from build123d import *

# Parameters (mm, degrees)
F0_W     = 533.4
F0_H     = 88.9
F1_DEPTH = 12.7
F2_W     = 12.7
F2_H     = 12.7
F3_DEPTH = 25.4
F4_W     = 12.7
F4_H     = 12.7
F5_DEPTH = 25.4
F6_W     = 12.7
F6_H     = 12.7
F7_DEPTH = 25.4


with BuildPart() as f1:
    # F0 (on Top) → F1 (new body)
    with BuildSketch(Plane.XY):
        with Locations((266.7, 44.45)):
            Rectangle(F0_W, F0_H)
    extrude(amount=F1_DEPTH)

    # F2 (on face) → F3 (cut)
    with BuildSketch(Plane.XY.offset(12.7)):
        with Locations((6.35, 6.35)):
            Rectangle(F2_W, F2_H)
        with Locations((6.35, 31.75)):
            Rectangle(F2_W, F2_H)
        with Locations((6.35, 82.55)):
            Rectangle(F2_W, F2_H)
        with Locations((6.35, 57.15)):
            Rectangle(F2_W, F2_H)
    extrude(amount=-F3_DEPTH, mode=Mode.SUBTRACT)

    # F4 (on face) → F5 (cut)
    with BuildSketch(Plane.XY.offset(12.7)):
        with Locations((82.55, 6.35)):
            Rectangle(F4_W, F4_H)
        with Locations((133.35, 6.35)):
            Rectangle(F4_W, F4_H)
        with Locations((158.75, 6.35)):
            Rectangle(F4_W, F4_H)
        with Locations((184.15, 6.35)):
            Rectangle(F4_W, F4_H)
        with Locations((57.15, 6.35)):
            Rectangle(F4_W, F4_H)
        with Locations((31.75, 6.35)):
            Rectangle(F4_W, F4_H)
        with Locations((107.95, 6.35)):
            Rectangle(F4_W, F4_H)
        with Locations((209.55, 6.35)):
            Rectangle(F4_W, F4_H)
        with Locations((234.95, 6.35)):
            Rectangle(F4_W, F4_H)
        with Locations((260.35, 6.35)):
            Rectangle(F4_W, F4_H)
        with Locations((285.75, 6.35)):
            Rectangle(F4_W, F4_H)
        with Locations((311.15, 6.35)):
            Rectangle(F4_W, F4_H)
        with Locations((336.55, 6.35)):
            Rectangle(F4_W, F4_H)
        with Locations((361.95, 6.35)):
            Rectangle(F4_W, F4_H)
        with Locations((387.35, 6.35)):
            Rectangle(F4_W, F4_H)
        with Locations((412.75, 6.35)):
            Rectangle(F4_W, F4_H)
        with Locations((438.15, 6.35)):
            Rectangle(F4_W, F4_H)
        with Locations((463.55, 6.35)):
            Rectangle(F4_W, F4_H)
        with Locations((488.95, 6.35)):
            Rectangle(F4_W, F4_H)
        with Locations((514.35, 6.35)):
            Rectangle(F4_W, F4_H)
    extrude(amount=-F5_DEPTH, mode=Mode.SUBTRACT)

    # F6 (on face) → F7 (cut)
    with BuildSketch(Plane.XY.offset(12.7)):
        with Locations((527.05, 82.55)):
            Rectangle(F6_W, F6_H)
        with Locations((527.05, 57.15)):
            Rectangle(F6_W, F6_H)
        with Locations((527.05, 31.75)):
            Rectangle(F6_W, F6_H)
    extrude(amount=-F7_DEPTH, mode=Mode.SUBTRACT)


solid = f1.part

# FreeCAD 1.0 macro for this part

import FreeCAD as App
import Part
import Sketcher
from FreeCAD import Vector
Q = App.Units.Quantity

doc = App.newDocument("Part")
body = doc.addObject("PartDesign::Body", "Body")

# Sketch on XY plane
sketch1 = body.newObject("Sketcher::SketchObject", "Sketch")
sketch1.AttachmentSupport = (doc.getObject("XY_Plane"), [""])
sketch1.MapMode = "FlatFace"
sketch1.addGeometry([
    Part.LineSegment(Vector(0, 89, 0), Vector(0, 0, 0)),
    Part.LineSegment(Vector(0, 0, 0), Vector(533, 0, 0)),
    Part.LineSegment(Vector(533, 0, 0), Vector(533, 89, 0)),
    Part.LineSegment(Vector(533, 89, 0), Vector(0, 89, 0)),
], False)
sketch1.addConstraint([
    Sketcher.Constraint("Coincident", 0, 2, 1, 1),
    Sketcher.Constraint("Coincident", 1, 2, 2, 1),
    Sketcher.Constraint("Coincident", 2, 2, 3, 1),
    Sketcher.Constraint("Coincident", 3, 2, 0, 1),
    Sketcher.Constraint("Vertical", 0),
    Sketcher.Constraint("Horizontal", 1),
    Sketcher.Constraint("Vertical", 2),
    Sketcher.Constraint("Horizontal", 3),
    Sketcher.Constraint("Coincident", 0, 2, -1, 1),
    Sketcher.Constraint("DistanceX", 1, 1, 1, 2, Q("21 in")),
    Sketcher.Constraint("DistanceY", 0, 2, 0, 1, Q("3.5 in")),
])
pad1 = body.newObject("PartDesign::Pad", "Pad")
pad1.Profile = sketch1
pad1.Length = Q("0.5 in")

# Sketch on XY plane
sketch2 = body.newObject("Sketcher::SketchObject", "Sketch001")
sketch2.AttachmentSupport = (doc.getObject("XY_Plane"), [""])
sketch2.MapMode = "FlatFace"
sketch2.AttachmentOffset = App.Placement(Vector(0, 0, 0.5 * 25.4), App.Rotation())
sketch2.addGeometry([
    Part.LineSegment(Vector(0, 13, 0), Vector(0, 0, 0)),  # 0
    Part.LineSegment(Vector(0, 0, 0), Vector(13, 0, 0)),  # 1
    Part.LineSegment(Vector(13, 0, 0), Vector(13, 13, 0)),  # 2
    Part.LineSegment(Vector(13, 13, 0), Vector(0, 13, 0)),  # 3
    Part.LineSegment(Vector(0, 38, 0), Vector(0, 25, 0)),  # 4
    Part.LineSegment(Vector(0, 25, 0), Vector(13, 25, 0)),  # 5
    Part.LineSegment(Vector(13, 25, 0), Vector(13, 38, 0)),  # 6
    Part.LineSegment(Vector(13, 38, 0), Vector(0, 38, 0)),  # 7
    Part.LineSegment(Vector(0, 89, 0), Vector(0, 76, 0)),  # 8
    Part.LineSegment(Vector(0, 76, 0), Vector(13, 76, 0)),  # 9
    Part.LineSegment(Vector(13, 76, 0), Vector(13, 89, 0)),  # 10
    Part.LineSegment(Vector(13, 89, 0), Vector(0, 89, 0)),  # 11
    Part.LineSegment(Vector(0, 64, 0), Vector(0, 51, 0)),  # 12
    Part.LineSegment(Vector(0, 51, 0), Vector(13, 51, 0)),  # 13
    Part.LineSegment(Vector(13, 51, 0), Vector(13, 64, 0)),  # 14
    Part.LineSegment(Vector(13, 64, 0), Vector(0, 64, 0)),  # 15
], False)
sketch2.addConstraint([
    Sketcher.Constraint("Coincident", 0, 2, 1, 1),
    Sketcher.Constraint("Coincident", 1, 2, 2, 1),
    Sketcher.Constraint("Coincident", 2, 2, 3, 1),
    Sketcher.Constraint("Coincident", 3, 2, 0, 1),
    Sketcher.Constraint("Coincident", 4, 2, 5, 1),
    Sketcher.Constraint("Coincident", 5, 2, 6, 1),
    Sketcher.Constraint("Coincident", 6, 2, 7, 1),
    Sketcher.Constraint("Coincident", 7, 2, 4, 1),
    Sketcher.Constraint("Coincident", 8, 2, 9, 1),
    Sketcher.Constraint("Coincident", 9, 2, 10, 1),
    Sketcher.Constraint("Coincident", 10, 2, 11, 1),
    Sketcher.Constraint("Coincident", 11, 2, 8, 1),
    Sketcher.Constraint("Coincident", 12, 2, 13, 1),
    Sketcher.Constraint("Coincident", 13, 2, 14, 1),
    Sketcher.Constraint("Coincident", 14, 2, 15, 1),
    Sketcher.Constraint("Coincident", 15, 2, 12, 1),
    Sketcher.Constraint("Vertical", 0),
    Sketcher.Constraint("Horizontal", 1),
    Sketcher.Constraint("Vertical", 2),
    Sketcher.Constraint("Horizontal", 3),
    Sketcher.Constraint("Vertical", 4),
    Sketcher.Constraint("Horizontal", 5),
    Sketcher.Constraint("Vertical", 6),
    Sketcher.Constraint("Horizontal", 7),
    Sketcher.Constraint("Vertical", 8),
    Sketcher.Constraint("Horizontal", 9),
    Sketcher.Constraint("Vertical", 10),
    Sketcher.Constraint("Horizontal", 11),
    Sketcher.Constraint("Vertical", 12),
    Sketcher.Constraint("Horizontal", 13),
    Sketcher.Constraint("Vertical", 14),
    Sketcher.Constraint("Horizontal", 15),
    Sketcher.Constraint("Coincident", 0, 2, -1, 1),
    Sketcher.Constraint("PointOnObject", 4, 2, -2),
    Sketcher.Constraint("PointOnObject", 8, 2, -2),
    Sketcher.Constraint("PointOnObject", 12, 2, -2),
    Sketcher.Constraint("Vertical", 2, 2, 5, 2),
    Sketcher.Constraint("Vertical", 6, 2, 9, 2),
    Sketcher.Constraint("Vertical", 10, 2, 13, 2),
    Sketcher.Constraint("Equal", 15, 0),
    Sketcher.Constraint("Equal", 2, 4),
    Sketcher.Constraint("Equal", 6, 8),
    Sketcher.Constraint("Equal", 10, 12),
    Sketcher.Constraint("DistanceX", 1, 1, 1, 2, Q("0.5 in")),
    Sketcher.Constraint("DistanceY", -1, 1, 4, 2, Q("1 in")),
    Sketcher.Constraint("DistanceY", -1, 1, 8, 2, Q("3 in")),
    Sketcher.Constraint("DistanceY", -1, 1, 12, 2, Q("2 in")),
])
pocket1 = body.newObject("PartDesign::Pocket", "Pocket")
pocket1.Profile = sketch2
pocket1.Length = Q("1 in")

# Sketch on XY plane
sketch3 = body.newObject("Sketcher::SketchObject", "Sketch002")
sketch3.AttachmentSupport = (doc.getObject("XY_Plane"), [""])
sketch3.MapMode = "FlatFace"
sketch3.AttachmentOffset = App.Placement(Vector(0, 0, 0.5 * 25.4), App.Rotation())
sketch3.addGeometry([
    Part.LineSegment(Vector(76, 13, 0), Vector(76, 0, 0)),  # 0
    Part.LineSegment(Vector(76, 0, 0), Vector(89, 0, 0)),  # 1
    Part.LineSegment(Vector(89, 0, 0), Vector(89, 13, 0)),  # 2
    Part.LineSegment(Vector(89, 13, 0), Vector(76, 13, 0)),  # 3
    Part.LineSegment(Vector(127, 13, 0), Vector(127, 0, 0)),  # 4
    Part.LineSegment(Vector(127, 0, 0), Vector(140, 0, 0)),  # 5
    Part.LineSegment(Vector(140, 0, 0), Vector(140, 13, 0)),  # 6
    Part.LineSegment(Vector(140, 13, 0), Vector(127, 13, 0)),  # 7
    Part.LineSegment(Vector(152, 13, 0), Vector(152, 0, 0)),  # 8
    Part.LineSegment(Vector(152, 0, 0), Vector(165, 0, 0)),  # 9
    Part.LineSegment(Vector(165, 0, 0), Vector(165, 13, 0)),  # 10
    Part.LineSegment(Vector(165, 13, 0), Vector(152, 13, 0)),  # 11
    Part.LineSegment(Vector(178, 13, 0), Vector(178, 0, 0)),  # 12
    Part.LineSegment(Vector(178, 0, 0), Vector(190, 0, 0)),  # 13
    Part.LineSegment(Vector(190, 0, 0), Vector(190, 13, 0)),  # 14
    Part.LineSegment(Vector(190, 13, 0), Vector(178, 13, 0)),  # 15
    Part.LineSegment(Vector(51, 13, 0), Vector(51, 0, 0)),  # 16
    Part.LineSegment(Vector(51, 0, 0), Vector(64, 0, 0)),  # 17
    Part.LineSegment(Vector(64, 0, 0), Vector(64, 13, 0)),  # 18
    Part.LineSegment(Vector(64, 13, 0), Vector(51, 13, 0)),  # 19
    Part.LineSegment(Vector(25, 13, 0), Vector(25, 0, 0)),  # 20
    Part.LineSegment(Vector(25, 0, 0), Vector(38, 0, 0)),  # 21
    Part.LineSegment(Vector(38, 0, 0), Vector(38, 13, 0)),  # 22
    Part.LineSegment(Vector(38, 13, 0), Vector(25, 13, 0)),  # 23
    Part.LineSegment(Vector(102, 13, 0), Vector(102, 0, 0)),  # 24
    Part.LineSegment(Vector(102, 0, 0), Vector(114, 0, 0)),  # 25
    Part.LineSegment(Vector(114, 0, 0), Vector(114, 13, 0)),  # 26
    Part.LineSegment(Vector(114, 13, 0), Vector(102, 13, 0)),  # 27
    Part.LineSegment(Vector(203, 13, 0), Vector(203, 0, 0)),  # 28
    Part.LineSegment(Vector(203, 0, 0), Vector(216, 0, 0)),  # 29
    Part.LineSegment(Vector(216, 0, 0), Vector(216, 13, 0)),  # 30
    Part.LineSegment(Vector(216, 13, 0), Vector(203, 13, 0)),  # 31
    Part.LineSegment(Vector(229, 13, 0), Vector(229, 0, 0)),  # 32
    Part.LineSegment(Vector(229, 0, 0), Vector(241, 0, 0)),  # 33
    Part.LineSegment(Vector(241, 0, 0), Vector(241, 13, 0)),  # 34
    Part.LineSegment(Vector(241, 13, 0), Vector(229, 13, 0)),  # 35
    Part.LineSegment(Vector(254, 13, 0), Vector(254, 0, 0)),  # 36
    Part.LineSegment(Vector(254, 0, 0), Vector(267, 0, 0)),  # 37
    Part.LineSegment(Vector(267, 0, 0), Vector(267, 13, 0)),  # 38
    Part.LineSegment(Vector(267, 13, 0), Vector(254, 13, 0)),  # 39
    Part.LineSegment(Vector(279, 13, 0), Vector(279, 0, 0)),  # 40
    Part.LineSegment(Vector(279, 0, 0), Vector(292, 0, 0)),  # 41
    Part.LineSegment(Vector(292, 0, 0), Vector(292, 13, 0)),  # 42
    Part.LineSegment(Vector(292, 13, 0), Vector(279, 13, 0)),  # 43
    Part.LineSegment(Vector(305, 13, 0), Vector(305, 0, 0)),  # 44
    Part.LineSegment(Vector(305, 0, 0), Vector(318, 0, 0)),  # 45
    Part.LineSegment(Vector(318, 0, 0), Vector(318, 13, 0)),  # 46
    Part.LineSegment(Vector(318, 13, 0), Vector(305, 13, 0)),  # 47
    Part.LineSegment(Vector(330, 13, 0), Vector(330, 0, 0)),  # 48
    Part.LineSegment(Vector(330, 0, 0), Vector(343, 0, 0)),  # 49
    Part.LineSegment(Vector(343, 0, 0), Vector(343, 13, 0)),  # 50
    Part.LineSegment(Vector(343, 13, 0), Vector(330, 13, 0)),  # 51
    Part.LineSegment(Vector(356, 13, 0), Vector(356, 0, 0)),  # 52
    Part.LineSegment(Vector(356, 0, 0), Vector(368, 0, 0)),  # 53
    Part.LineSegment(Vector(368, 0, 0), Vector(368, 13, 0)),  # 54
    Part.LineSegment(Vector(368, 13, 0), Vector(356, 13, 0)),  # 55
    Part.LineSegment(Vector(381, 13, 0), Vector(381, 0, 0)),  # 56
    Part.LineSegment(Vector(381, 0, 0), Vector(394, 0, 0)),  # 57
    Part.LineSegment(Vector(394, 0, 0), Vector(394, 13, 0)),  # 58
    Part.LineSegment(Vector(394, 13, 0), Vector(381, 13, 0)),  # 59
    Part.LineSegment(Vector(406, 13, 0), Vector(406, 0, 0)),  # 60
    Part.LineSegment(Vector(406, 0, 0), Vector(419, 0, 0)),  # 61
    Part.LineSegment(Vector(419, 0, 0), Vector(419, 13, 0)),  # 62
    Part.LineSegment(Vector(419, 13, 0), Vector(406, 13, 0)),  # 63
    Part.LineSegment(Vector(432, 13, 0), Vector(432, 0, 0)),  # 64
    Part.LineSegment(Vector(432, 0, 0), Vector(444, 0, 0)),  # 65
    Part.LineSegment(Vector(444, 0, 0), Vector(444, 13, 0)),  # 66
    Part.LineSegment(Vector(444, 13, 0), Vector(432, 13, 0)),  # 67
    Part.LineSegment(Vector(457, 13, 0), Vector(457, 0, 0)),  # 68
    Part.LineSegment(Vector(457, 0, 0), Vector(470, 0, 0)),  # 69
    Part.LineSegment(Vector(470, 0, 0), Vector(470, 13, 0)),  # 70
    Part.LineSegment(Vector(470, 13, 0), Vector(457, 13, 0)),  # 71
    Part.LineSegment(Vector(483, 13, 0), Vector(483, 0, 0)),  # 72
    Part.LineSegment(Vector(483, 0, 0), Vector(495, 0, 0)),  # 73
    Part.LineSegment(Vector(495, 0, 0), Vector(495, 13, 0)),  # 74
    Part.LineSegment(Vector(495, 13, 0), Vector(483, 13, 0)),  # 75
    Part.LineSegment(Vector(508, 13, 0), Vector(508, 0, 0)),  # 76
    Part.LineSegment(Vector(508, 0, 0), Vector(521, 0, 0)),  # 77
    Part.LineSegment(Vector(521, 0, 0), Vector(521, 13, 0)),  # 78
    Part.LineSegment(Vector(521, 13, 0), Vector(508, 13, 0)),  # 79
], False)
sketch3.addConstraint([
    Sketcher.Constraint("Coincident", 0, 2, 1, 1),
    Sketcher.Constraint("Coincident", 1, 2, 2, 1),
    Sketcher.Constraint("Coincident", 2, 2, 3, 1),
    Sketcher.Constraint("Coincident", 3, 2, 0, 1),
    Sketcher.Constraint("Coincident", 4, 2, 5, 1),
    Sketcher.Constraint("Coincident", 5, 2, 6, 1),
    Sketcher.Constraint("Coincident", 6, 2, 7, 1),
    Sketcher.Constraint("Coincident", 7, 2, 4, 1),
    Sketcher.Constraint("Coincident", 8, 2, 9, 1),
    Sketcher.Constraint("Coincident", 9, 2, 10, 1),
    Sketcher.Constraint("Coincident", 10, 2, 11, 1),
    Sketcher.Constraint("Coincident", 11, 2, 8, 1),
    Sketcher.Constraint("Coincident", 12, 2, 13, 1),
    Sketcher.Constraint("Coincident", 13, 2, 14, 1),
    Sketcher.Constraint("Coincident", 14, 2, 15, 1),
    Sketcher.Constraint("Coincident", 15, 2, 12, 1),
    Sketcher.Constraint("Coincident", 16, 2, 17, 1),
    Sketcher.Constraint("Coincident", 17, 2, 18, 1),
    Sketcher.Constraint("Coincident", 18, 2, 19, 1),
    Sketcher.Constraint("Coincident", 19, 2, 16, 1),
    Sketcher.Constraint("Coincident", 20, 2, 21, 1),
    Sketcher.Constraint("Coincident", 21, 2, 22, 1),
    Sketcher.Constraint("Coincident", 22, 2, 23, 1),
    Sketcher.Constraint("Coincident", 23, 2, 20, 1),
    Sketcher.Constraint("Coincident", 24, 2, 25, 1),
    Sketcher.Constraint("Coincident", 25, 2, 26, 1),
    Sketcher.Constraint("Coincident", 26, 2, 27, 1),
    Sketcher.Constraint("Coincident", 27, 2, 24, 1),
    Sketcher.Constraint("Coincident", 28, 2, 29, 1),
    Sketcher.Constraint("Coincident", 29, 2, 30, 1),
    Sketcher.Constraint("Coincident", 30, 2, 31, 1),
    Sketcher.Constraint("Coincident", 31, 2, 28, 1),
    Sketcher.Constraint("Coincident", 32, 2, 33, 1),
    Sketcher.Constraint("Coincident", 33, 2, 34, 1),
    Sketcher.Constraint("Coincident", 34, 2, 35, 1),
    Sketcher.Constraint("Coincident", 35, 2, 32, 1),
    Sketcher.Constraint("Coincident", 36, 2, 37, 1),
    Sketcher.Constraint("Coincident", 37, 2, 38, 1),
    Sketcher.Constraint("Coincident", 38, 2, 39, 1),
    Sketcher.Constraint("Coincident", 39, 2, 36, 1),
    Sketcher.Constraint("Coincident", 40, 2, 41, 1),
    Sketcher.Constraint("Coincident", 41, 2, 42, 1),
    Sketcher.Constraint("Coincident", 42, 2, 43, 1),
    Sketcher.Constraint("Coincident", 43, 2, 40, 1),
    Sketcher.Constraint("Coincident", 44, 2, 45, 1),
    Sketcher.Constraint("Coincident", 45, 2, 46, 1),
    Sketcher.Constraint("Coincident", 46, 2, 47, 1),
    Sketcher.Constraint("Coincident", 47, 2, 44, 1),
    Sketcher.Constraint("Coincident", 48, 2, 49, 1),
    Sketcher.Constraint("Coincident", 49, 2, 50, 1),
    Sketcher.Constraint("Coincident", 50, 2, 51, 1),
    Sketcher.Constraint("Coincident", 51, 2, 48, 1),
    Sketcher.Constraint("Coincident", 52, 2, 53, 1),
    Sketcher.Constraint("Coincident", 53, 2, 54, 1),
    Sketcher.Constraint("Coincident", 54, 2, 55, 1),
    Sketcher.Constraint("Coincident", 55, 2, 52, 1),
    Sketcher.Constraint("Coincident", 56, 2, 57, 1),
    Sketcher.Constraint("Coincident", 57, 2, 58, 1),
    Sketcher.Constraint("Coincident", 58, 2, 59, 1),
    Sketcher.Constraint("Coincident", 59, 2, 56, 1),
    Sketcher.Constraint("Coincident", 60, 2, 61, 1),
    Sketcher.Constraint("Coincident", 61, 2, 62, 1),
    Sketcher.Constraint("Coincident", 62, 2, 63, 1),
    Sketcher.Constraint("Coincident", 63, 2, 60, 1),
    Sketcher.Constraint("Coincident", 64, 2, 65, 1),
    Sketcher.Constraint("Coincident", 65, 2, 66, 1),
    Sketcher.Constraint("Coincident", 66, 2, 67, 1),
    Sketcher.Constraint("Coincident", 67, 2, 64, 1),
    Sketcher.Constraint("Coincident", 68, 2, 69, 1),
    Sketcher.Constraint("Coincident", 69, 2, 70, 1),
    Sketcher.Constraint("Coincident", 70, 2, 71, 1),
    Sketcher.Constraint("Coincident", 71, 2, 68, 1),
    Sketcher.Constraint("Coincident", 72, 2, 73, 1),
    Sketcher.Constraint("Coincident", 73, 2, 74, 1),
    Sketcher.Constraint("Coincident", 74, 2, 75, 1),
    Sketcher.Constraint("Coincident", 75, 2, 72, 1),
    Sketcher.Constraint("Coincident", 76, 2, 77, 1),
    Sketcher.Constraint("Coincident", 77, 2, 78, 1),
    Sketcher.Constraint("Coincident", 78, 2, 79, 1),
    Sketcher.Constraint("Coincident", 79, 2, 76, 1),
    Sketcher.Constraint("Vertical", 0),
    Sketcher.Constraint("Horizontal", 1),
    Sketcher.Constraint("Vertical", 2),
    Sketcher.Constraint("Horizontal", 3),
    Sketcher.Constraint("Vertical", 4),
    Sketcher.Constraint("Horizontal", 5),
    Sketcher.Constraint("Vertical", 6),
    Sketcher.Constraint("Horizontal", 7),
    Sketcher.Constraint("Vertical", 8),
    Sketcher.Constraint("Horizontal", 9),
    Sketcher.Constraint("Vertical", 10),
    Sketcher.Constraint("Horizontal", 11),
    Sketcher.Constraint("Vertical", 12),
    Sketcher.Constraint("Horizontal", 13),
    Sketcher.Constraint("Vertical", 14),
    Sketcher.Constraint("Horizontal", 15),
    Sketcher.Constraint("Vertical", 16),
    Sketcher.Constraint("Horizontal", 17),
    Sketcher.Constraint("Vertical", 18),
    Sketcher.Constraint("Horizontal", 19),
    Sketcher.Constraint("Vertical", 20),
    Sketcher.Constraint("Horizontal", 21),
    Sketcher.Constraint("Vertical", 22),
    Sketcher.Constraint("Horizontal", 23),
    Sketcher.Constraint("Vertical", 24),
    Sketcher.Constraint("Horizontal", 25),
    Sketcher.Constraint("Vertical", 26),
    Sketcher.Constraint("Horizontal", 27),
    Sketcher.Constraint("Vertical", 28),
    Sketcher.Constraint("Horizontal", 29),
    Sketcher.Constraint("Vertical", 30),
    Sketcher.Constraint("Horizontal", 31),
    Sketcher.Constraint("Vertical", 32),
    Sketcher.Constraint("Horizontal", 33),
    Sketcher.Constraint("Vertical", 34),
    Sketcher.Constraint("Horizontal", 35),
    Sketcher.Constraint("Vertical", 36),
    Sketcher.Constraint("Horizontal", 37),
    Sketcher.Constraint("Vertical", 38),
    Sketcher.Constraint("Horizontal", 39),
    Sketcher.Constraint("Vertical", 40),
    Sketcher.Constraint("Horizontal", 41),
    Sketcher.Constraint("Vertical", 42),
    Sketcher.Constraint("Horizontal", 43),
    Sketcher.Constraint("Vertical", 44),
    Sketcher.Constraint("Horizontal", 45),
    Sketcher.Constraint("Vertical", 46),
    Sketcher.Constraint("Horizontal", 47),
    Sketcher.Constraint("Vertical", 48),
    Sketcher.Constraint("Horizontal", 49),
    Sketcher.Constraint("Vertical", 50),
    Sketcher.Constraint("Horizontal", 51),
    Sketcher.Constraint("Vertical", 52),
    Sketcher.Constraint("Horizontal", 53),
    Sketcher.Constraint("Vertical", 54),
    Sketcher.Constraint("Horizontal", 55),
    Sketcher.Constraint("Vertical", 56),
    Sketcher.Constraint("Horizontal", 57),
    Sketcher.Constraint("Vertical", 58),
    Sketcher.Constraint("Horizontal", 59),
    Sketcher.Constraint("Vertical", 60),
    Sketcher.Constraint("Horizontal", 61),
    Sketcher.Constraint("Vertical", 62),
    Sketcher.Constraint("Horizontal", 63),
    Sketcher.Constraint("Vertical", 64),
    Sketcher.Constraint("Horizontal", 65),
    Sketcher.Constraint("Vertical", 66),
    Sketcher.Constraint("Horizontal", 67),
    Sketcher.Constraint("Vertical", 68),
    Sketcher.Constraint("Horizontal", 69),
    Sketcher.Constraint("Vertical", 70),
    Sketcher.Constraint("Horizontal", 71),
    Sketcher.Constraint("Vertical", 72),
    Sketcher.Constraint("Horizontal", 73),
    Sketcher.Constraint("Vertical", 74),
    Sketcher.Constraint("Horizontal", 75),
    Sketcher.Constraint("Vertical", 76),
    Sketcher.Constraint("Horizontal", 77),
    Sketcher.Constraint("Vertical", 78),
    Sketcher.Constraint("Horizontal", 79),
    Sketcher.Constraint("PointOnObject", 0, 2, -1),
    Sketcher.Constraint("PointOnObject", 4, 2, -1),
    Sketcher.Constraint("PointOnObject", 8, 2, -1),
    Sketcher.Constraint("PointOnObject", 12, 2, -1),
    Sketcher.Constraint("PointOnObject", 16, 2, -1),
    Sketcher.Constraint("PointOnObject", 20, 2, -1),
    Sketcher.Constraint("PointOnObject", 24, 2, -1),
    Sketcher.Constraint("PointOnObject", 28, 2, -1),
    Sketcher.Constraint("PointOnObject", 32, 2, -1),
    Sketcher.Constraint("PointOnObject", 36, 2, -1),
    Sketcher.Constraint("PointOnObject", 40, 2, -1),
    Sketcher.Constraint("PointOnObject", 44, 2, -1),
    Sketcher.Constraint("PointOnObject", 48, 2, -1),
    Sketcher.Constraint("PointOnObject", 52, 2, -1),
    Sketcher.Constraint("PointOnObject", 56, 2, -1),
    Sketcher.Constraint("PointOnObject", 60, 2, -1),
    Sketcher.Constraint("PointOnObject", 64, 2, -1),
    Sketcher.Constraint("PointOnObject", 68, 2, -1),
    Sketcher.Constraint("PointOnObject", 72, 2, -1),
    Sketcher.Constraint("PointOnObject", 76, 2, -1),
    Sketcher.Constraint("Horizontal", 3, 2, 6, 2),
    Sketcher.Constraint("Horizontal", 7, 2, 10, 2),
    Sketcher.Constraint("Horizontal", 11, 2, 14, 2),
    Sketcher.Constraint("Horizontal", 15, 2, 18, 2),
    Sketcher.Constraint("Horizontal", 19, 2, 22, 2),
    Sketcher.Constraint("Horizontal", 23, 2, 26, 2),
    Sketcher.Constraint("Horizontal", 27, 2, 30, 2),
    Sketcher.Constraint("Horizontal", 31, 2, 34, 2),
    Sketcher.Constraint("Horizontal", 35, 2, 38, 2),
    Sketcher.Constraint("Horizontal", 39, 2, 42, 2),
    Sketcher.Constraint("Horizontal", 43, 2, 46, 2),
    Sketcher.Constraint("Horizontal", 47, 2, 50, 2),
    Sketcher.Constraint("Horizontal", 51, 2, 54, 2),
    Sketcher.Constraint("Horizontal", 55, 2, 58, 2),
    Sketcher.Constraint("Horizontal", 59, 2, 62, 2),
    Sketcher.Constraint("Horizontal", 63, 2, 66, 2),
    Sketcher.Constraint("Horizontal", 67, 2, 70, 2),
    Sketcher.Constraint("Horizontal", 71, 2, 74, 2),
    Sketcher.Constraint("Horizontal", 75, 2, 78, 2),
    Sketcher.Constraint("Equal", 3, 5),
    Sketcher.Constraint("Equal", 7, 9),
    Sketcher.Constraint("Equal", 11, 13),
    Sketcher.Constraint("Equal", 15, 17),
    Sketcher.Constraint("Equal", 19, 21),
    Sketcher.Constraint("Equal", 23, 25),
    Sketcher.Constraint("Equal", 27, 29),
    Sketcher.Constraint("Equal", 31, 33),
    Sketcher.Constraint("Equal", 35, 37),
    Sketcher.Constraint("Equal", 39, 41),
    Sketcher.Constraint("Equal", 43, 45),
    Sketcher.Constraint("Equal", 47, 49),
    Sketcher.Constraint("Equal", 51, 53),
    Sketcher.Constraint("Equal", 55, 57),
    Sketcher.Constraint("Equal", 59, 61),
    Sketcher.Constraint("Equal", 63, 65),
    Sketcher.Constraint("Equal", 67, 69),
    Sketcher.Constraint("Equal", 71, 73),
    Sketcher.Constraint("Equal", 75, 77),
    Sketcher.Constraint("Equal", 79, 0),
    Sketcher.Constraint("DistanceX", 1, 1, 1, 2, Q("0.5 in")),
    Sketcher.Constraint("DistanceX", -1, 1, 0, 2, Q("3 in")),
    Sketcher.Constraint("DistanceX", -1, 1, 4, 2, Q("5 in")),
    Sketcher.Constraint("DistanceX", -1, 1, 8, 2, Q("6 in")),
    Sketcher.Constraint("DistanceX", -1, 1, 12, 2, Q("7 in")),
    Sketcher.Constraint("DistanceX", -1, 1, 16, 2, Q("2 in")),
    Sketcher.Constraint("DistanceX", -1, 1, 20, 2, Q("1 in")),
    Sketcher.Constraint("DistanceX", -1, 1, 24, 2, Q("4 in")),
    Sketcher.Constraint("DistanceX", -1, 1, 28, 2, Q("8 in")),
    Sketcher.Constraint("DistanceX", -1, 1, 32, 2, Q("9 in")),
    Sketcher.Constraint("DistanceX", -1, 1, 36, 2, Q("10 in")),
    Sketcher.Constraint("DistanceX", -1, 1, 40, 2, Q("11 in")),
    Sketcher.Constraint("DistanceX", -1, 1, 44, 2, Q("12 in")),
    Sketcher.Constraint("DistanceX", -1, 1, 48, 2, Q("13 in")),
    Sketcher.Constraint("DistanceX", -1, 1, 52, 2, Q("14 in")),
    Sketcher.Constraint("DistanceX", -1, 1, 56, 2, Q("15 in")),
    Sketcher.Constraint("DistanceX", -1, 1, 60, 2, Q("16 in")),
    Sketcher.Constraint("DistanceX", -1, 1, 64, 2, Q("17 in")),
    Sketcher.Constraint("DistanceX", -1, 1, 68, 2, Q("18 in")),
    Sketcher.Constraint("DistanceX", -1, 1, 72, 2, Q("19 in")),
    Sketcher.Constraint("DistanceX", -1, 1, 76, 2, Q("20 in")),
])
pocket2 = body.newObject("PartDesign::Pocket", "Pocket001")
pocket2.Profile = sketch3
pocket2.Length = Q("1 in")

# Sketch on XY plane
sketch4 = body.newObject("Sketcher::SketchObject", "Sketch003")
sketch4.AttachmentSupport = (doc.getObject("XY_Plane"), [""])
sketch4.MapMode = "FlatFace"
sketch4.AttachmentOffset = App.Placement(Vector(0, 0, 0.5 * 25.4), App.Rotation())
sketch4.addGeometry([
    Part.LineSegment(Vector(521, 89, 0), Vector(521, 76, 0)),  # 0
    Part.LineSegment(Vector(521, 76, 0), Vector(533, 76, 0)),  # 1
    Part.LineSegment(Vector(533, 76, 0), Vector(533, 89, 0)),  # 2
    Part.LineSegment(Vector(533, 89, 0), Vector(521, 89, 0)),  # 3
    Part.LineSegment(Vector(521, 64, 0), Vector(521, 51, 0)),  # 4
    Part.LineSegment(Vector(521, 51, 0), Vector(533, 51, 0)),  # 5
    Part.LineSegment(Vector(533, 51, 0), Vector(533, 64, 0)),  # 6
    Part.LineSegment(Vector(533, 64, 0), Vector(521, 64, 0)),  # 7
    Part.LineSegment(Vector(521, 38, 0), Vector(521, 25, 0)),  # 8
    Part.LineSegment(Vector(521, 25, 0), Vector(533, 25, 0)),  # 9
    Part.LineSegment(Vector(533, 25, 0), Vector(533, 38, 0)),  # 10
    Part.LineSegment(Vector(533, 38, 0), Vector(521, 38, 0)),  # 11
], False)
sketch4.addConstraint([
    Sketcher.Constraint("Coincident", 0, 2, 1, 1),
    Sketcher.Constraint("Coincident", 1, 2, 2, 1),
    Sketcher.Constraint("Coincident", 2, 2, 3, 1),
    Sketcher.Constraint("Coincident", 3, 2, 0, 1),
    Sketcher.Constraint("Coincident", 4, 2, 5, 1),
    Sketcher.Constraint("Coincident", 5, 2, 6, 1),
    Sketcher.Constraint("Coincident", 6, 2, 7, 1),
    Sketcher.Constraint("Coincident", 7, 2, 4, 1),
    Sketcher.Constraint("Coincident", 8, 2, 9, 1),
    Sketcher.Constraint("Coincident", 9, 2, 10, 1),
    Sketcher.Constraint("Coincident", 10, 2, 11, 1),
    Sketcher.Constraint("Coincident", 11, 2, 8, 1),
    Sketcher.Constraint("Vertical", 0),
    Sketcher.Constraint("Horizontal", 1),
    Sketcher.Constraint("Vertical", 2),
    Sketcher.Constraint("Horizontal", 3),
    Sketcher.Constraint("Vertical", 4),
    Sketcher.Constraint("Horizontal", 5),
    Sketcher.Constraint("Vertical", 6),
    Sketcher.Constraint("Horizontal", 7),
    Sketcher.Constraint("Vertical", 8),
    Sketcher.Constraint("Horizontal", 9),
    Sketcher.Constraint("Vertical", 10),
    Sketcher.Constraint("Horizontal", 11),
    Sketcher.Constraint("Vertical", 3, 2, 4, 2),
    Sketcher.Constraint("Vertical", 2, 2, 5, 2),
    Sketcher.Constraint("Vertical", 7, 2, 8, 2),
    Sketcher.Constraint("Vertical", 6, 2, 9, 2),
    Sketcher.Constraint("Equal", 11, 0),
    Sketcher.Constraint("Equal", 2, 4),
    Sketcher.Constraint("Equal", 6, 8),
    Sketcher.Constraint("DistanceX", 1, 1, 1, 2, Q("0.5 in")),
    Sketcher.Constraint("DistanceY", -1, 1, 0, 2, Q("3 in")),
    Sketcher.Constraint("DistanceX", -1, 1, 1, 2, Q("21 in")),
    Sketcher.Constraint("DistanceY", -1, 1, 4, 2, Q("2 in")),
    Sketcher.Constraint("DistanceY", -1, 1, 8, 2, Q("1 in")),
])
pocket3 = body.newObject("PartDesign::Pocket", "Pocket002")
pocket3.Profile = sketch4
pocket3.Length = Q("1 in")

doc.recompute()
